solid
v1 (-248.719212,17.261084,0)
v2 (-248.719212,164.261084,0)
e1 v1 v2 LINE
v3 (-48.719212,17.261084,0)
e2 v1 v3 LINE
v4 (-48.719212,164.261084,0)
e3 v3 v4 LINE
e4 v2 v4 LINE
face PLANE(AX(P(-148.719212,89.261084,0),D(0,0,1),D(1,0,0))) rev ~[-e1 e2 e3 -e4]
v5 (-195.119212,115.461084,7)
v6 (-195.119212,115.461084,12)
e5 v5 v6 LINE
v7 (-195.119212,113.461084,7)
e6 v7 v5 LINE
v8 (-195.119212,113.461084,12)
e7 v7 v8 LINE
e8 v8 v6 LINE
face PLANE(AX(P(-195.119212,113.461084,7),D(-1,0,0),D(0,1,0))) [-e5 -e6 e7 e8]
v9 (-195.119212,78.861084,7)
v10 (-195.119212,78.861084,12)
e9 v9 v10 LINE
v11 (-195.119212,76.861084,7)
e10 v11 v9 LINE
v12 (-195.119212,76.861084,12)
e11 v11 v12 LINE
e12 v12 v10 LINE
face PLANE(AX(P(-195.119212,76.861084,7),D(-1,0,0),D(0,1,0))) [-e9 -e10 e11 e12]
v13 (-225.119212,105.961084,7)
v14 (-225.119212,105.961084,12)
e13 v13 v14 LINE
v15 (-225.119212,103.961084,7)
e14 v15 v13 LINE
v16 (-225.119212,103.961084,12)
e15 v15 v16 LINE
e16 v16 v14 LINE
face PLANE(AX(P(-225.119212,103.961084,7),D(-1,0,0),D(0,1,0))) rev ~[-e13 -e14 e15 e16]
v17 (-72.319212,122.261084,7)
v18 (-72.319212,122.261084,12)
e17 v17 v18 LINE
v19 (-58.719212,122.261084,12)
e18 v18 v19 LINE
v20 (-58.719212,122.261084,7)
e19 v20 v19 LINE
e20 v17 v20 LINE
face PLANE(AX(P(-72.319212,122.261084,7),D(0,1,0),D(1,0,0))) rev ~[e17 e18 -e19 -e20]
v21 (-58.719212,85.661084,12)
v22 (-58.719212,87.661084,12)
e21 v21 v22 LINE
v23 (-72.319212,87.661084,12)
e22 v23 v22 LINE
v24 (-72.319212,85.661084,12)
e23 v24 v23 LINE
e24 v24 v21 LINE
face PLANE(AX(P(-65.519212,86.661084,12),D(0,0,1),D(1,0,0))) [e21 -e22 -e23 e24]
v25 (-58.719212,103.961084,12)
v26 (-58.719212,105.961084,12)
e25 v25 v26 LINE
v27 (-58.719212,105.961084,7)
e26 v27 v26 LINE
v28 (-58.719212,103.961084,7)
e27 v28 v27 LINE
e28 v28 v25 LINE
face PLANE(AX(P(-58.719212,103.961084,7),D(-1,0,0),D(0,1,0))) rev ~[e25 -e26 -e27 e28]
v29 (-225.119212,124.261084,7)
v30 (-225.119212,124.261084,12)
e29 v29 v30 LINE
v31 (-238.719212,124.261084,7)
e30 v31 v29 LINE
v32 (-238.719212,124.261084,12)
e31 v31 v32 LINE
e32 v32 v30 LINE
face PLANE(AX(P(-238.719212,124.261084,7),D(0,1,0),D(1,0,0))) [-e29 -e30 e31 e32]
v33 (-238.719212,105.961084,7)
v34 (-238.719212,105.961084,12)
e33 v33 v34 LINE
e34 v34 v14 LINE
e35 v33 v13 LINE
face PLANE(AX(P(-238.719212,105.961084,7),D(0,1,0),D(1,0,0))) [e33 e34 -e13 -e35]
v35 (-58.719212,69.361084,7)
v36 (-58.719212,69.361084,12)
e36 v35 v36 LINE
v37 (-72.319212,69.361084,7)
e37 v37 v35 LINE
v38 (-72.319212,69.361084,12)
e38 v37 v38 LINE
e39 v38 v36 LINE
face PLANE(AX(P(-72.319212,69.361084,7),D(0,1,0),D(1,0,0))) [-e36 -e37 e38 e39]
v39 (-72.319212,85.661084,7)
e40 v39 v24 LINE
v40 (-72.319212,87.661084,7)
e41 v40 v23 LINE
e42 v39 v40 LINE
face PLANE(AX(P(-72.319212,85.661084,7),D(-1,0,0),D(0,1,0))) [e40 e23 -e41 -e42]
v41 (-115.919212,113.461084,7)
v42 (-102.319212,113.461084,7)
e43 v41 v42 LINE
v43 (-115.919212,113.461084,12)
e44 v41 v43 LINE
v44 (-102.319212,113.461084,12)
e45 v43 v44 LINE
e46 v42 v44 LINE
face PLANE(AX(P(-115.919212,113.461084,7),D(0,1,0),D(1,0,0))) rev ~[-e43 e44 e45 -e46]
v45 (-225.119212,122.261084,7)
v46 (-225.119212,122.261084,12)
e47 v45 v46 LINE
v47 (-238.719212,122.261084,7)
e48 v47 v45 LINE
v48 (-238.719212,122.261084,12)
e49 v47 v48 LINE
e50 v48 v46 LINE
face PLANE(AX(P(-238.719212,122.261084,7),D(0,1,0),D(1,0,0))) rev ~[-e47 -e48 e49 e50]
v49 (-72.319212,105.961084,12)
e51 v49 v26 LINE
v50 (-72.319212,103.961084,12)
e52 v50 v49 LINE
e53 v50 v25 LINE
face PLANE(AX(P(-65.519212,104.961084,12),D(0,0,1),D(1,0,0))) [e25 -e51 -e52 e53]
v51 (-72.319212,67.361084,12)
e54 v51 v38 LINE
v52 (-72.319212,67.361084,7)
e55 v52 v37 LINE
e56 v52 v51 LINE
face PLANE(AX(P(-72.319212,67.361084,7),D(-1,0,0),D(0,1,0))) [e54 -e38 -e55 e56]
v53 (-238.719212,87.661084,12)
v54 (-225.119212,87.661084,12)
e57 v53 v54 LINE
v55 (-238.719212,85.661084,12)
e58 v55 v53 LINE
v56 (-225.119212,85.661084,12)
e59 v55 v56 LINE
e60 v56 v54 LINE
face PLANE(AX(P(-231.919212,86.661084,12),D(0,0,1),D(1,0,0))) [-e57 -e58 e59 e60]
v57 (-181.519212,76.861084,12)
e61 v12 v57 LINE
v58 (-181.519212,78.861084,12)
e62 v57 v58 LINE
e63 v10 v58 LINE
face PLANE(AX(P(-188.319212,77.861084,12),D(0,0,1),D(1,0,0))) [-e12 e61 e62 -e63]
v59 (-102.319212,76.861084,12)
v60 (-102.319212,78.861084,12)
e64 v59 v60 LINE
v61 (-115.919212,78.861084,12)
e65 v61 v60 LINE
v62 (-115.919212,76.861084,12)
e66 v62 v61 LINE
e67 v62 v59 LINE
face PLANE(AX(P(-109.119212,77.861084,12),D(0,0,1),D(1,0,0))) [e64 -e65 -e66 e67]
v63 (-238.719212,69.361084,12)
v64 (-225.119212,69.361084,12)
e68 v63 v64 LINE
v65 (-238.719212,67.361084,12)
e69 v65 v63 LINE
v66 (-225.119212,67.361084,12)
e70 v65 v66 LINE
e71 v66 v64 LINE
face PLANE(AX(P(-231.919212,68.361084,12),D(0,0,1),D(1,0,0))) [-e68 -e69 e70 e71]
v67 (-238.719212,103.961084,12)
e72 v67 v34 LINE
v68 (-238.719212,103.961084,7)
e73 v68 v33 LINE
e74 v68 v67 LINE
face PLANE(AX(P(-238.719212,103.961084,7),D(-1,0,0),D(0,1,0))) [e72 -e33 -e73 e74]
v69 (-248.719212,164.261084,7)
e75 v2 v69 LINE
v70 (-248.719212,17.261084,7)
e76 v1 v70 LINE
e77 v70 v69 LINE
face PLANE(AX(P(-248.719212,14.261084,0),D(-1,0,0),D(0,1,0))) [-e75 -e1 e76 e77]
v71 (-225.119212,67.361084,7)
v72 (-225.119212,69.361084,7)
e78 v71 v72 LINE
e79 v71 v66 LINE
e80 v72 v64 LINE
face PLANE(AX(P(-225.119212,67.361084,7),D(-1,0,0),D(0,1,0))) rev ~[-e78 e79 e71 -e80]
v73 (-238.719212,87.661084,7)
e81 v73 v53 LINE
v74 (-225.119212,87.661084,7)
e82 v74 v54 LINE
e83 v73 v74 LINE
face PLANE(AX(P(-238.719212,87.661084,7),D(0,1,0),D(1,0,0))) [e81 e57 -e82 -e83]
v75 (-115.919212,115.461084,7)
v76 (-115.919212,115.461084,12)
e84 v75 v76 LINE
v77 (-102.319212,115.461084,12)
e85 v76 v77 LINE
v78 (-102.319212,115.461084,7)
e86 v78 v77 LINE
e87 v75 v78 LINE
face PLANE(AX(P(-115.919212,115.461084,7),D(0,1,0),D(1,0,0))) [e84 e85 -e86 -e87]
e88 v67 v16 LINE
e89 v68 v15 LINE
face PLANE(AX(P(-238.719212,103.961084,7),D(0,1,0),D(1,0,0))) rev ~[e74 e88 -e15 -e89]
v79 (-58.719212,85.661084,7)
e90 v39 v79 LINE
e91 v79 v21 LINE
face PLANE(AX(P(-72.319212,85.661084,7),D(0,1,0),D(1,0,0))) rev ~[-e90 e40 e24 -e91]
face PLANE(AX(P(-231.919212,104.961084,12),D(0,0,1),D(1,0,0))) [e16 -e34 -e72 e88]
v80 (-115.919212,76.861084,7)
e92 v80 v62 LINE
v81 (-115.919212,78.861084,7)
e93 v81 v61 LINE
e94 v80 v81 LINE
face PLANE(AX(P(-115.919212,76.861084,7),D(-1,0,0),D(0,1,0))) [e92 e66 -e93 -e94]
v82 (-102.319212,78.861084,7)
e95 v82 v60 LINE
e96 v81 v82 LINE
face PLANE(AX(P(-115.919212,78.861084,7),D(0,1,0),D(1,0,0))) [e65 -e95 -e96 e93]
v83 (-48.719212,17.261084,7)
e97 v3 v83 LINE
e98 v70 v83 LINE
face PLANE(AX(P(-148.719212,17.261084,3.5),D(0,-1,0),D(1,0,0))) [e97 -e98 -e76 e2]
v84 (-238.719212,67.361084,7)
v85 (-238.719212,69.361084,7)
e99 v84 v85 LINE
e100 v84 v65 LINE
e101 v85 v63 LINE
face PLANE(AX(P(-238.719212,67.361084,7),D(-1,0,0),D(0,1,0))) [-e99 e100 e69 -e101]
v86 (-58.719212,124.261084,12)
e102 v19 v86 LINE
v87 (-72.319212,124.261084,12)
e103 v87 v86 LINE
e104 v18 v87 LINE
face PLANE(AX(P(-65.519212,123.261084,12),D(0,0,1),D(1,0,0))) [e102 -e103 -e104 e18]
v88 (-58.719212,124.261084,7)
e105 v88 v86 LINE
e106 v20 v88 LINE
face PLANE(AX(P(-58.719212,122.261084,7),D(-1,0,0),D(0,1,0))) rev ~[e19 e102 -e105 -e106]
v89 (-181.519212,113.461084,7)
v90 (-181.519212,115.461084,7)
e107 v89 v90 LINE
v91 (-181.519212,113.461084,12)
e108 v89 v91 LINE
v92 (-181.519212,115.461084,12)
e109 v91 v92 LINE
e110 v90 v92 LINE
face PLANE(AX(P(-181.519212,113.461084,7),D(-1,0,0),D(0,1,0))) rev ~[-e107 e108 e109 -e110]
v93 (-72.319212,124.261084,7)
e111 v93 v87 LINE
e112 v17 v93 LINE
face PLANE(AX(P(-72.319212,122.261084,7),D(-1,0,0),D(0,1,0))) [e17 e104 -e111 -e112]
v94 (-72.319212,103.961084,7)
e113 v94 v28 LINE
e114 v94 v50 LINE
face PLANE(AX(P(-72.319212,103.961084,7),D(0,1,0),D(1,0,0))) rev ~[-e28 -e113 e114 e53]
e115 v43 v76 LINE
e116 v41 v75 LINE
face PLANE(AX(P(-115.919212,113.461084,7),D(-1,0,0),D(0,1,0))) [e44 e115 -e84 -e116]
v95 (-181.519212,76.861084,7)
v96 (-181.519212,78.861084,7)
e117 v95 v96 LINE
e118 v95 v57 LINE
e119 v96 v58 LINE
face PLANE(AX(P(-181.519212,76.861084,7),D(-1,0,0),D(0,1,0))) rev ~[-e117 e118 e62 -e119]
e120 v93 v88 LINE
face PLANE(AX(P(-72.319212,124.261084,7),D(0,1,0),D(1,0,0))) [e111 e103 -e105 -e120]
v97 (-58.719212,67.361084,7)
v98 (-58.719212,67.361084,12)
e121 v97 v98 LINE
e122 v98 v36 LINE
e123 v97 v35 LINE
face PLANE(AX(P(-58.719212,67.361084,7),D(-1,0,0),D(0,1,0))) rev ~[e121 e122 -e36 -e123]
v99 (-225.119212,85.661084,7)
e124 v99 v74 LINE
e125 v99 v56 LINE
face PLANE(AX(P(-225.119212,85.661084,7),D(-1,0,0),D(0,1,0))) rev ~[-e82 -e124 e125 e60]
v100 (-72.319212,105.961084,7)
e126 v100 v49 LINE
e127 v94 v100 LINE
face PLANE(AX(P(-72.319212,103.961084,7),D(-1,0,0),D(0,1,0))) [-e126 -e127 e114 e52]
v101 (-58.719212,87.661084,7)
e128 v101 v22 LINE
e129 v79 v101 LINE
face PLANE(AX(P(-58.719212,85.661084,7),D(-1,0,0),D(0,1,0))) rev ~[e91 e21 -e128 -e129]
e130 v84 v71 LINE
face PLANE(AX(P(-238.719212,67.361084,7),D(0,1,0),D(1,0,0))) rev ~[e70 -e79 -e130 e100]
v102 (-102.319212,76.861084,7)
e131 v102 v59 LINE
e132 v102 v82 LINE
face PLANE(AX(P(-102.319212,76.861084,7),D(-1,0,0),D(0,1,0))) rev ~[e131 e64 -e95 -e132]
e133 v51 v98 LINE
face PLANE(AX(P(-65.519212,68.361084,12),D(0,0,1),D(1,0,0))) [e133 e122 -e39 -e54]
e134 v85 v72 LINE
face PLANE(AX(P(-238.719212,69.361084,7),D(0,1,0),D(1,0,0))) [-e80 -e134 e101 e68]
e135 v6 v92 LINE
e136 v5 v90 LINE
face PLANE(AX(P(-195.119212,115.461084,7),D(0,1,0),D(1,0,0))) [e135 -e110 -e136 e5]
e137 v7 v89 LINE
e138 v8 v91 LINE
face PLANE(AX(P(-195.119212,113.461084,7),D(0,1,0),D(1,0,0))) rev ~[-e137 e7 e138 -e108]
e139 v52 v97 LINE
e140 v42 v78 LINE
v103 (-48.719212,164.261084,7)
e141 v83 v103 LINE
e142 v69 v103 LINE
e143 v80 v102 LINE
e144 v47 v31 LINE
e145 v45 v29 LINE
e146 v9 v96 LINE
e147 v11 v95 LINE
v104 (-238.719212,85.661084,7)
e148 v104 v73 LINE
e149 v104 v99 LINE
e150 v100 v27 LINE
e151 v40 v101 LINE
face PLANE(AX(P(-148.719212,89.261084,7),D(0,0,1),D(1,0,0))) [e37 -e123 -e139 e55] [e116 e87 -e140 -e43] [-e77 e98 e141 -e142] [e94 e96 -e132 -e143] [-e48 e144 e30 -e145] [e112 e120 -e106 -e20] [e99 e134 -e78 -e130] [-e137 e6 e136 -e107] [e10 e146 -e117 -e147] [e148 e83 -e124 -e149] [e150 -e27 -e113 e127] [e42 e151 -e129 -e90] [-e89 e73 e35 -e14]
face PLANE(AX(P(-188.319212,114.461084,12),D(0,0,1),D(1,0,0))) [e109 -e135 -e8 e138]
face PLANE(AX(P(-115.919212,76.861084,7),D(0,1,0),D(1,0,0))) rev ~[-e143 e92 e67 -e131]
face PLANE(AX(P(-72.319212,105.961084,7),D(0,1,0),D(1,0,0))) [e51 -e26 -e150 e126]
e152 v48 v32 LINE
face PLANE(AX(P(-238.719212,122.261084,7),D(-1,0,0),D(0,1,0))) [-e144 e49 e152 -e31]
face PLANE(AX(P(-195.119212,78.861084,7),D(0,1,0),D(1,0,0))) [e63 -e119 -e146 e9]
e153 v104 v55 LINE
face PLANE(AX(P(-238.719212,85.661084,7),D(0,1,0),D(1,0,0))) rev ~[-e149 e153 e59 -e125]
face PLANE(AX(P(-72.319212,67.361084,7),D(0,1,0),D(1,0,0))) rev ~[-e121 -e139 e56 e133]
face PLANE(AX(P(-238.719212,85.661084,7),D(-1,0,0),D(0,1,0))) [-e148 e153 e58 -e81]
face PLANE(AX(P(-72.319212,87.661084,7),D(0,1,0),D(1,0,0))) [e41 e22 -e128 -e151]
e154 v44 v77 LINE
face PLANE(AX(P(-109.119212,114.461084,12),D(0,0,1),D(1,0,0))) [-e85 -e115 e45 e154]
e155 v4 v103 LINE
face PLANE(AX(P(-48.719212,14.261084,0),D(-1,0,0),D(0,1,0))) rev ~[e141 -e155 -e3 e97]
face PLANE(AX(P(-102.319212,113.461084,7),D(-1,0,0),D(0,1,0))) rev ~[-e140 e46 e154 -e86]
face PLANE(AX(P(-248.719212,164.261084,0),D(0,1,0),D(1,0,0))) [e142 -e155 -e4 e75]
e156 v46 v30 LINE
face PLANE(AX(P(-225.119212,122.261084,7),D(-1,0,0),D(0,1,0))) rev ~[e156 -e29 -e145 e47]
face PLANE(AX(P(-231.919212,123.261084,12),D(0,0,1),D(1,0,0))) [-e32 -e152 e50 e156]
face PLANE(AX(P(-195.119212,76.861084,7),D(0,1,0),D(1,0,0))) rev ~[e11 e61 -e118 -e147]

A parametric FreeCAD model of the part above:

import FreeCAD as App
import Part
import Sketcher

V = App.Vector
Q = App.Units.Quantity


def add_polygon(sketch, points):
    """Adds a closed chain of lines whose ends are joined by coincident constraints."""
    first, n = sketch.GeometryCount, len(points)
    for a, b in zip(points, points[1:] + points[:1]):
        sketch.addGeometry(Part.LineSegment(App.Vector(*a, 0), App.Vector(*b, 0)), False)
    for i in range(n):
        sketch.addConstraint(Sketcher.Constraint("Coincident", first + i, 2, first + (i + 1) % n, 1))

doc = App.newDocument("Part")
params = doc.addObject("Spreadsheet::Sheet", "Params")
for row, (alias, value) in enumerate([
    ("sketch1_width", "200 mm"),
    ("sketch1_height", "150 mm"),
    ("pad1_length", "7 mm"),
    ("sketch2_height", "2 mm"),
    ("sketch2_width", "13.6 mm"),
    ("pad2_length", "5 mm"),
    ("sketch3_width", "200 mm"),
    ("sketch3_height", "7 mm"),
    ("pocket1_length", "3 mm"),
], start=1):
    params.set(f"A{row}", alias)
    params.set(f"B{row}", "=" + value)
    params.setAlias(f"B{row}", alias)

body = doc.addObject("PartDesign::Body", "Body")

# Sketch on XY plane
sketch1 = body.newObject("Sketcher::SketchObject", "Sketch")
sketch1.AttachmentSupport = (doc.getObject("XY_Plane"), [""])
sketch1.MapMode = "FlatFace"
add_polygon(sketch1, [(-249, 164), (-249, 14), (-49, 14), (-49, 164)])  # lines 0-3
sketch1.addConstraint(Sketcher.Constraint("Vertical", 0))
sketch1.addConstraint(Sketcher.Constraint("Horizontal", 1))
sketch1.addConstraint(Sketcher.Constraint("Vertical", 2))
sketch1.addConstraint(Sketcher.Constraint("Horizontal", 3))
sketch1.addConstraint(Sketcher.Constraint("DistanceX", 1, 1, 1, 2, Q("200 mm")))
sketch1.addConstraint(Sketcher.Constraint("DistanceY", 0, 2, 0, 1, Q("150 mm")))
sketch1.addConstraint(Sketcher.Constraint("DistanceX", 0, 2, -1, 1, Q("248.719212 mm")))
sketch1.addConstraint(Sketcher.Constraint("DistanceY", -1, 1, 0, 2, Q("14.261084 mm")))
sketch1.setExpression("Constraints[8]", "Params.sketch1_width")
sketch1.setExpression("Constraints[9]", "Params.sketch1_height")
pad1 = body.newObject("PartDesign::Pad", "Pad")
pad1.Profile = sketch1
pad1.setExpression("Length", "Params.pad1_length")

# Sketch on XY plane
sketch2 = body.newObject("Sketcher::SketchObject", "Sketch001")
sketch2.AttachmentSupport = (doc.getObject("XY_Plane"), [""])
sketch2.MapMode = "FlatFace"
sketch2.AttachmentOffset = App.Placement(V(0, 0, 7), App.Rotation())
add_polygon(sketch2, [(-115.9, 115.5), (-115.9, 113.5), (-102.3, 113.5), (-102.3, 115.5)])  # lines 0-3
add_polygon(sketch2, [(-72.3, 106), (-72.3, 104), (-58.7, 104), (-58.7, 106)])  # lines 4-7
add_polygon(sketch2, [(-72.3, 124.3), (-72.3, 122.3), (-58.7, 122.3), (-58.7, 124.3)])  # lines 8-11
add_polygon(sketch2, [(-72.3, 87.7), (-72.3, 85.7), (-58.7, 85.7), (-58.7, 87.7)])  # lines 12-15
add_polygon(sketch2, [(-72.3, 69.4), (-72.3, 67.4), (-58.7, 67.4), (-58.7, 69.4)])  # lines 16-19
add_polygon(sketch2, [(-238.7, 106), (-238.7, 104), (-225.1, 104), (-225.1, 106)])  # lines 20-23
add_polygon(sketch2, [(-238.7, 124.3), (-238.7, 122.3), (-225.1, 122.3), (-225.1, 124.3)])  # lines 24-27
add_polygon(sketch2, [(-238.7, 87.7), (-238.7, 85.7), (-225.1, 85.7), (-225.1, 87.7)])  # lines 28-31
add_polygon(sketch2, [(-238.7, 69.4), (-238.7, 67.4), (-225.1, 67.4), (-225.1, 69.4)])  # lines 32-35
add_polygon(sketch2, [(-195.1, 115.5), (-195.1, 113.5), (-181.5, 113.5), (-181.5, 115.5)])  # lines 36-39
add_polygon(sketch2, [(-195.1, 78.9), (-195.1, 76.9), (-181.5, 76.9), (-181.5, 78.9)])  # lines 40-43
add_polygon(sketch2, [(-115.9, 78.9), (-115.9, 76.9), (-102.3, 76.9), (-102.3, 78.9)])  # lines 44-47
sketch2.addConstraint(Sketcher.Constraint("Vertical", 0))
sketch2.addConstraint(Sketcher.Constraint("Horizontal", 1))
sketch2.addConstraint(Sketcher.Constraint("Vertical", 2))
sketch2.addConstraint(Sketcher.Constraint("Horizontal", 3))
sketch2.addConstraint(Sketcher.Constraint("Vertical", 4))
sketch2.addConstraint(Sketcher.Constraint("Horizontal", 5))
sketch2.addConstraint(Sketcher.Constraint("Vertical", 6))
sketch2.addConstraint(Sketcher.Constraint("Horizontal", 7))
sketch2.addConstraint(Sketcher.Constraint("Vertical", 8))
sketch2.addConstraint(Sketcher.Constraint("Horizontal", 9))
sketch2.addConstraint(Sketcher.Constraint("Vertical", 10))
sketch2.addConstraint(Sketcher.Constraint("Horizontal", 11))
sketch2.addConstraint(Sketcher.Constraint("Vertical", 12))
sketch2.addConstraint(Sketcher.Constraint("Horizontal", 13))
sketch2.addConstraint(Sketcher.Constraint("Vertical", 14))
sketch2.addConstraint(Sketcher.Constraint("Horizontal", 15))
sketch2.addConstraint(Sketcher.Constraint("Vertical", 16))
sketch2.addConstraint(Sketcher.Constraint("Horizontal", 17))
sketch2.addConstraint(Sketcher.Constraint("Vertical", 18))
sketch2.addConstraint(Sketcher.Constraint("Horizontal", 19))
sketch2.addConstraint(Sketcher.Constraint("Vertical", 20))
sketch2.addConstraint(Sketcher.Constraint("Horizontal", 21))
sketch2.addConstraint(Sketcher.Constraint("Vertical", 22))
sketch2.addConstraint(Sketcher.Constraint("Horizontal", 23))
sketch2.addConstraint(Sketcher.Constraint("Vertical", 24))
sketch2.addConstraint(Sketcher.Constraint("Horizontal", 25))
sketch2.addConstraint(Sketcher.Constraint("Vertical", 26))
sketch2.addConstraint(Sketcher.Constraint("Horizontal", 27))
sketch2.addConstraint(Sketcher.Constraint("Vertical", 28))
sketch2.addConstraint(Sketcher.Constraint("Horizontal", 29))
sketch2.addConstraint(Sketcher.Constraint("Vertical", 30))
sketch2.addConstraint(Sketcher.Constraint("Horizontal", 31))
sketch2.addConstraint(Sketcher.Constraint("Vertical", 32))
sketch2.addConstraint(Sketcher.Constraint("Horizontal", 33))
sketch2.addConstraint(Sketcher.Constraint("Vertical", 34))
sketch2.addConstraint(Sketcher.Constraint("Horizontal", 35))
sketch2.addConstraint(Sketcher.Constraint("Vertical", 36))
sketch2.addConstraint(Sketcher.Constraint("Horizontal", 37))
sketch2.addConstraint(Sketcher.Constraint("Vertical", 38))
sketch2.addConstraint(Sketcher.Constraint("Horizontal", 39))
sketch2.addConstraint(Sketcher.Constraint("Vertical", 40))
sketch2.addConstraint(Sketcher.Constraint("Horizontal", 41))
sketch2.addConstraint(Sketcher.Constraint("Vertical", 42))
sketch2.addConstraint(Sketcher.Constraint("Horizontal", 43))
sketch2.addConstraint(Sketcher.Constraint("Vertical", 44))
sketch2.addConstraint(Sketcher.Constraint("Horizontal", 45))
sketch2.addConstraint(Sketcher.Constraint("Vertical", 46))
sketch2.addConstraint(Sketcher.Constraint("Horizontal", 47))
sketch2.addConstraint(Sketcher.Constraint("Horizontal", 5, 2, 20, 2))
sketch2.addConstraint(Sketcher.Constraint("Horizontal", 7, 2, 22, 2))
sketch2.addConstraint(Sketcher.Constraint("Horizontal", 9, 2, 24, 2))
sketch2.addConstraint(Sketcher.Constraint("Horizontal", 11, 2, 26, 2))
sketch2.addConstraint(Sketcher.Constraint("Horizontal", 13, 2, 28, 2))
sketch2.addConstraint(Sketcher.Constraint("Horizontal", 15, 2, 30, 2))
sketch2.addConstraint(Sketcher.Constraint("Horizontal", 17, 2, 32, 2))
sketch2.addConstraint(Sketcher.Constraint("Horizontal", 19, 2, 34, 2))
sketch2.addConstraint(Sketcher.Constraint("Horizontal", 1, 2, 36, 2))
sketch2.addConstraint(Sketcher.Constraint("Horizontal", 3, 2, 38, 2))
sketch2.addConstraint(Sketcher.Constraint("Horizontal", 41, 2, 44, 2))
sketch2.addConstraint(Sketcher.Constraint("Horizontal", 43, 2, 46, 2))
sketch2.addConstraint(Sketcher.Constraint("Vertical", 7, 2, 8, 2))
sketch2.addConstraint(Sketcher.Constraint("Vertical", 6, 2, 9, 2))
sketch2.addConstraint(Sketcher.Constraint("Vertical", 11, 2, 12, 2))
sketch2.addConstraint(Sketcher.Constraint("Vertical", 10, 2, 13, 2))
sketch2.addConstraint(Sketcher.Constraint("Vertical", 15, 2, 16, 2))
sketch2.addConstraint(Sketcher.Constraint("Vertical", 14, 2, 17, 2))
sketch2.addConstraint(Sketcher.Constraint("Vertical", 23, 2, 24, 2))
sketch2.addConstraint(Sketcher.Constraint("Vertical", 22, 2, 25, 2))
sketch2.addConstraint(Sketcher.Constraint("Vertical", 27, 2, 28, 2))
sketch2.addConstraint(Sketcher.Constraint("Vertical", 26, 2, 29, 2))
sketch2.addConstraint(Sketcher.Constraint("Vertical", 31, 2, 32, 2))
sketch2.addConstraint(Sketcher.Constraint("Vertical", 30, 2, 33, 2))
sketch2.addConstraint(Sketcher.Constraint("Vertical", 39, 2, 40, 2))
sketch2.addConstraint(Sketcher.Constraint("Vertical", 38, 2, 41, 2))
sketch2.addConstraint(Sketcher.Constraint("Vertical", 3, 2, 44, 2))
sketch2.addConstraint(Sketcher.Constraint("Vertical", 2, 2, 45, 2))
sketch2.addConstraint(Sketcher.Constraint("Equal", 3, 5))
sketch2.addConstraint(Sketcher.Constraint("Equal", 19, 21))
sketch2.addConstraint(Sketcher.Constraint("Equal", 35, 37))
sketch2.addConstraint(Sketcher.Constraint("Equal", 2, 4))
sketch2.addConstraint(Sketcher.Constraint("Equal", 6, 8))
sketch2.addConstraint(Sketcher.Constraint("Equal", 10, 12))
sketch2.addConstraint(Sketcher.Constraint("Equal", 14, 16))
sketch2.addConstraint(Sketcher.Constraint("Equal", 38, 40))
sketch2.addConstraint(Sketcher.Constraint("DistanceY", 0, 2, 0, 1, Q("2 mm")))
sketch2.addConstraint(Sketcher.Constraint("DistanceX", 1, 1, 1, 2, Q("13.6 mm")))
sketch2.addConstraint(Sketcher.Constraint("DistanceX", 1, 2, 4, 2, Q("30 mm")))
sketch2.addConstraint(Sketcher.Constraint("DistanceX", 22, 2, 36, 2, Q("30 mm")))
sketch2.addConstraint(Sketcher.Constraint("DistanceY", 4, 2, 1, 2, Q("9.5 mm")))
sketch2.addConstraint(Sketcher.Constraint("DistanceY", 7, 2, 8, 2, Q("16.3 mm")))
sketch2.addConstraint(Sketcher.Constraint("DistanceY", 12, 2, 4, 2, Q("18.3 mm")))
sketch2.addConstraint(Sketcher.Constraint("DistanceY", 16, 2, 12, 2, Q("18.3 mm")))
sketch2.addConstraint(Sketcher.Constraint("DistanceX", 20, 2, 0, 2, Q("122.8 mm")))
sketch2.addConstraint(Sketcher.Constraint("DistanceY", 34, 2, 40, 2, Q("7.5 mm")))
sketch2.addConstraint(Sketcher.Constraint("DistanceX", 0, 2, -1, 1, Q("115.919212 mm")))
sketch2.addConstraint(Sketcher.Constraint("DistanceY", -1, 1, 0, 2, Q("113.461084 mm")))
sketch2.setExpression("Constraints[132]", "Params.sketch2_height")
sketch2.setExpression("Constraints[133]", "Params.sketch2_width")
pad2 = body.newObject("PartDesign::Pad", "Pad001")
pad2.Profile = sketch2
pad2.setExpression("Length", "Params.pad2_length")

# Sketch on XZ plane
sketch3 = body.newObject("Sketcher::SketchObject", "Sketch002")
sketch3.AttachmentSupport = (doc.getObject("XZ_Plane"), [""])
sketch3.MapMode = "FlatFace"
sketch3.AttachmentOffset = App.Placement(V(0, 0, -14.261084), App.Rotation())
add_polygon(sketch3, [(-249, 7), (-249, 0), (-49, 0), (-49, 7)])  # lines 0-3
sketch3.addConstraint(Sketcher.Constraint("Vertical", 0))
sketch3.addConstraint(Sketcher.Constraint("Horizontal", 1))
sketch3.addConstraint(Sketcher.Constraint("Vertical", 2))
sketch3.addConstraint(Sketcher.Constraint("Horizontal", 3))
sketch3.addConstraint(Sketcher.Constraint("PointOnObject", 0, 2, -1))
sketch3.addConstraint(Sketcher.Constraint("DistanceX", 1, 1, 1, 2, Q("200 mm")))
sketch3.addConstraint(Sketcher.Constraint("DistanceY", 0, 2, 0, 1, Q("7 mm")))
sketch3.addConstraint(Sketcher.Constraint("DistanceX", 0, 2, -1, 1, Q("248.719212 mm")))
sketch3.setExpression("Constraints[9]", "Params.sketch3_width")
sketch3.setExpression("Constraints[10]", "Params.sketch3_height")
pocket1 = body.newObject("PartDesign::Pocket", "Pocket")
pocket1.Profile = sketch3
pocket1.setExpression("Length", "Params.pocket1_length")

doc.recompute()
